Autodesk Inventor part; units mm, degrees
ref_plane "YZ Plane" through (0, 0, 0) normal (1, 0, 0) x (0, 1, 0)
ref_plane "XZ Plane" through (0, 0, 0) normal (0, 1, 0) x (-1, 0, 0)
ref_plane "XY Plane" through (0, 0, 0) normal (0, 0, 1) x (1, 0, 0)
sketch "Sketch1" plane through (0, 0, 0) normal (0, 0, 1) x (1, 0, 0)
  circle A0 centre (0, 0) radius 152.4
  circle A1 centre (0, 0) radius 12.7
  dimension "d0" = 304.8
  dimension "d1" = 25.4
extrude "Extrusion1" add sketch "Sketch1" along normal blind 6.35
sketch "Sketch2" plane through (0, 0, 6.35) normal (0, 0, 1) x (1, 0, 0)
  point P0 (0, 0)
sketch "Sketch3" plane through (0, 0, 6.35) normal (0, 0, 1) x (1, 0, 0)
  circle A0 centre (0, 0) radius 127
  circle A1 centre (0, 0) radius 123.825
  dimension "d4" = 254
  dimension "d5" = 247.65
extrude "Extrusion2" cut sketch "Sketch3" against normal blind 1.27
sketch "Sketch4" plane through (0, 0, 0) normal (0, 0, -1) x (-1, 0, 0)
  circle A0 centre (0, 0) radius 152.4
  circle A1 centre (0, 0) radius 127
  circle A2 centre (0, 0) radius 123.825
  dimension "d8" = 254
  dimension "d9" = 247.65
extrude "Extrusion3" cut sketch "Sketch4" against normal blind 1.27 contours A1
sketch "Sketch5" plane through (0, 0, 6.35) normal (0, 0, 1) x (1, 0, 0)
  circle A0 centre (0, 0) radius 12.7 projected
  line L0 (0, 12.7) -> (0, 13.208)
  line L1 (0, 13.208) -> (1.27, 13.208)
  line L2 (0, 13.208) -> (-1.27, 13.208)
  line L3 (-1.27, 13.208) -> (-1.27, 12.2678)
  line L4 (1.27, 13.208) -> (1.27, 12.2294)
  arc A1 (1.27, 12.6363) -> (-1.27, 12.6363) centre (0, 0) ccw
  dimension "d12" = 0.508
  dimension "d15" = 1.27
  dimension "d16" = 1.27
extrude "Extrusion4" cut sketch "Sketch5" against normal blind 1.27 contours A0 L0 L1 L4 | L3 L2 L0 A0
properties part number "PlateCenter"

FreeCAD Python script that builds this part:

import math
import FreeCAD as App
import Part
import Sketcher

V = App.Vector
Q = App.Units.Quantity

doc = App.newDocument("Part")
body = doc.addObject("PartDesign::Body", "Body")

sketch1 = doc.addObject("Sketcher::SketchObject", "Sketch")
body.addObject(sketch1)
sketch1.AttachmentSupport = (doc.XY_Plane, [""])
sketch1.MapMode = "FlatFace"
sketch1.addGeometry([
    Part.Circle(V(0, 0, 0), V(0, 0, 1), 152),
    Part.Circle(V(0, 0, 0), V(0, 0, 1), 13),
], False)
sketch1.addConstraint([
    Sketcher.Constraint("Coincident", 0, 3, -1, 1),
    Sketcher.Constraint("Coincident", 1, 3, -1, 1),
    Sketcher.Constraint("Diameter", 0, Q("12 in")),
    Sketcher.Constraint("Diameter", 1, Q("1 in")),
])
pad1 = doc.addObject("PartDesign::Pad", "Pad")
body.addObject(pad1)
pad1.Profile = sketch1
pad1.Length = Q("0.25 in")

sketch2 = doc.addObject("Sketcher::SketchObject", "Sketch001")
body.addObject(sketch2)
sketch2.AttachmentSupport = (doc.XY_Plane, [""])
sketch2.MapMode = "FlatFace"
sketch2.AttachmentOffset = App.Placement(V(0, 0, 0.25 * 25.4), App.Rotation())
sketch2.addGeometry([
    Part.Circle(V(0, 0, 0), V(0, 0, 1), 127),
    Part.Circle(V(0, 0, 0), V(0, 0, 1), 124),
], False)
sketch2.addConstraint([
    Sketcher.Constraint("Coincident", 0, 3, -1, 1),
    Sketcher.Constraint("Coincident", 1, 3, -1, 1),
    Sketcher.Constraint("Diameter", 0, Q("10 in")),
    Sketcher.Constraint("Diameter", 1, Q("9.75 in")),
])
pocket1 = doc.addObject("PartDesign::Pocket", "Pocket")
body.addObject(pocket1)
pocket1.Profile = sketch2
pocket1.Length = Q("0.05 in")

sketch3 = doc.addObject("Sketcher::SketchObject", "Sketch002")
body.addObject(sketch3)
sketch3.AttachmentSupport = (doc.XY_Plane, [""])
sketch3.MapMode = "FlatFace"
sketch3.addGeometry([
    Part.Circle(V(0, 0, 0), V(0, 0, 1), 127),
    Part.Circle(V(0, 0, 0), V(0, 0, 1), 124),
], False)
sketch3.addConstraint([
    Sketcher.Constraint("Coincident", 0, 3, -1, 1),
    Sketcher.Constraint("Coincident", 1, 3, -1, 1),
    Sketcher.Constraint("Diameter", 0, Q("10 in")),
    Sketcher.Constraint("Diameter", 1, Q("9.75 in")),
])
pocket2 = doc.addObject("PartDesign::Pocket", "Pocket001")
body.addObject(pocket2)
pocket2.Profile = sketch3
pocket2.Length = Q("0.05 in")
pocket2.Reversed = True

sketch4 = doc.addObject("Sketcher::SketchObject", "Sketch003")
body.addObject(sketch4)
sketch4.AttachmentSupport = (doc.XY_Plane, [""])
sketch4.MapMode = "FlatFace"
sketch4.AttachmentOffset = App.Placement(V(0, 0, 0.25 * 25.4), App.Rotation())
sketch4.addGeometry([
    Part.LineSegment(V(1.3, 12.6, 0), V(1.3, 13.2, 0)),
    Part.LineSegment(V(1.3, 13.2, 0), V(-1.3, 13.2, 0)),
    Part.LineSegment(V(-1.3, 13.2, 0), V(-1.3, 12.6, 0)),
    Part.ArcOfCircle(Part.Circle(V(0, 0, 0), V(0, 0, 1), 12.7), math.radians(84.26), math.radians(95.74)),
], False)
sketch4.addConstraint([
    Sketcher.Constraint("Coincident", 0, 2, 1, 1),
    Sketcher.Constraint("Coincident", 1, 2, 2, 1),
    Sketcher.Constraint("Coincident", 2, 2, 3, 2),
    Sketcher.Constraint("Coincident", 3, 1, 0, 1),
    Sketcher.Constraint("Vertical", 0),
    Sketcher.Constraint("Horizontal", 1),
    Sketcher.Constraint("Vertical", 2),
    Sketcher.Constraint("Coincident", 3, 3, -1, 1),
    Sketcher.Constraint("Horizontal", 2, 2, 3, 1),
    Sketcher.Constraint("Radius", 3, Q("0.5 in")),
    Sketcher.Constraint("DistanceX", -1, 1, 0, 2, Q("0.05 in")),
    Sketcher.Constraint("DistanceY", -1, 1, 0, 2, Q("0.52 in")),
])
pocket3 = doc.addObject("PartDesign::Pocket", "Pocket002")
body.addObject(pocket3)
pocket3.Profile = sketch4
pocket3.Length = Q("0.05 in")

doc.recompute()
